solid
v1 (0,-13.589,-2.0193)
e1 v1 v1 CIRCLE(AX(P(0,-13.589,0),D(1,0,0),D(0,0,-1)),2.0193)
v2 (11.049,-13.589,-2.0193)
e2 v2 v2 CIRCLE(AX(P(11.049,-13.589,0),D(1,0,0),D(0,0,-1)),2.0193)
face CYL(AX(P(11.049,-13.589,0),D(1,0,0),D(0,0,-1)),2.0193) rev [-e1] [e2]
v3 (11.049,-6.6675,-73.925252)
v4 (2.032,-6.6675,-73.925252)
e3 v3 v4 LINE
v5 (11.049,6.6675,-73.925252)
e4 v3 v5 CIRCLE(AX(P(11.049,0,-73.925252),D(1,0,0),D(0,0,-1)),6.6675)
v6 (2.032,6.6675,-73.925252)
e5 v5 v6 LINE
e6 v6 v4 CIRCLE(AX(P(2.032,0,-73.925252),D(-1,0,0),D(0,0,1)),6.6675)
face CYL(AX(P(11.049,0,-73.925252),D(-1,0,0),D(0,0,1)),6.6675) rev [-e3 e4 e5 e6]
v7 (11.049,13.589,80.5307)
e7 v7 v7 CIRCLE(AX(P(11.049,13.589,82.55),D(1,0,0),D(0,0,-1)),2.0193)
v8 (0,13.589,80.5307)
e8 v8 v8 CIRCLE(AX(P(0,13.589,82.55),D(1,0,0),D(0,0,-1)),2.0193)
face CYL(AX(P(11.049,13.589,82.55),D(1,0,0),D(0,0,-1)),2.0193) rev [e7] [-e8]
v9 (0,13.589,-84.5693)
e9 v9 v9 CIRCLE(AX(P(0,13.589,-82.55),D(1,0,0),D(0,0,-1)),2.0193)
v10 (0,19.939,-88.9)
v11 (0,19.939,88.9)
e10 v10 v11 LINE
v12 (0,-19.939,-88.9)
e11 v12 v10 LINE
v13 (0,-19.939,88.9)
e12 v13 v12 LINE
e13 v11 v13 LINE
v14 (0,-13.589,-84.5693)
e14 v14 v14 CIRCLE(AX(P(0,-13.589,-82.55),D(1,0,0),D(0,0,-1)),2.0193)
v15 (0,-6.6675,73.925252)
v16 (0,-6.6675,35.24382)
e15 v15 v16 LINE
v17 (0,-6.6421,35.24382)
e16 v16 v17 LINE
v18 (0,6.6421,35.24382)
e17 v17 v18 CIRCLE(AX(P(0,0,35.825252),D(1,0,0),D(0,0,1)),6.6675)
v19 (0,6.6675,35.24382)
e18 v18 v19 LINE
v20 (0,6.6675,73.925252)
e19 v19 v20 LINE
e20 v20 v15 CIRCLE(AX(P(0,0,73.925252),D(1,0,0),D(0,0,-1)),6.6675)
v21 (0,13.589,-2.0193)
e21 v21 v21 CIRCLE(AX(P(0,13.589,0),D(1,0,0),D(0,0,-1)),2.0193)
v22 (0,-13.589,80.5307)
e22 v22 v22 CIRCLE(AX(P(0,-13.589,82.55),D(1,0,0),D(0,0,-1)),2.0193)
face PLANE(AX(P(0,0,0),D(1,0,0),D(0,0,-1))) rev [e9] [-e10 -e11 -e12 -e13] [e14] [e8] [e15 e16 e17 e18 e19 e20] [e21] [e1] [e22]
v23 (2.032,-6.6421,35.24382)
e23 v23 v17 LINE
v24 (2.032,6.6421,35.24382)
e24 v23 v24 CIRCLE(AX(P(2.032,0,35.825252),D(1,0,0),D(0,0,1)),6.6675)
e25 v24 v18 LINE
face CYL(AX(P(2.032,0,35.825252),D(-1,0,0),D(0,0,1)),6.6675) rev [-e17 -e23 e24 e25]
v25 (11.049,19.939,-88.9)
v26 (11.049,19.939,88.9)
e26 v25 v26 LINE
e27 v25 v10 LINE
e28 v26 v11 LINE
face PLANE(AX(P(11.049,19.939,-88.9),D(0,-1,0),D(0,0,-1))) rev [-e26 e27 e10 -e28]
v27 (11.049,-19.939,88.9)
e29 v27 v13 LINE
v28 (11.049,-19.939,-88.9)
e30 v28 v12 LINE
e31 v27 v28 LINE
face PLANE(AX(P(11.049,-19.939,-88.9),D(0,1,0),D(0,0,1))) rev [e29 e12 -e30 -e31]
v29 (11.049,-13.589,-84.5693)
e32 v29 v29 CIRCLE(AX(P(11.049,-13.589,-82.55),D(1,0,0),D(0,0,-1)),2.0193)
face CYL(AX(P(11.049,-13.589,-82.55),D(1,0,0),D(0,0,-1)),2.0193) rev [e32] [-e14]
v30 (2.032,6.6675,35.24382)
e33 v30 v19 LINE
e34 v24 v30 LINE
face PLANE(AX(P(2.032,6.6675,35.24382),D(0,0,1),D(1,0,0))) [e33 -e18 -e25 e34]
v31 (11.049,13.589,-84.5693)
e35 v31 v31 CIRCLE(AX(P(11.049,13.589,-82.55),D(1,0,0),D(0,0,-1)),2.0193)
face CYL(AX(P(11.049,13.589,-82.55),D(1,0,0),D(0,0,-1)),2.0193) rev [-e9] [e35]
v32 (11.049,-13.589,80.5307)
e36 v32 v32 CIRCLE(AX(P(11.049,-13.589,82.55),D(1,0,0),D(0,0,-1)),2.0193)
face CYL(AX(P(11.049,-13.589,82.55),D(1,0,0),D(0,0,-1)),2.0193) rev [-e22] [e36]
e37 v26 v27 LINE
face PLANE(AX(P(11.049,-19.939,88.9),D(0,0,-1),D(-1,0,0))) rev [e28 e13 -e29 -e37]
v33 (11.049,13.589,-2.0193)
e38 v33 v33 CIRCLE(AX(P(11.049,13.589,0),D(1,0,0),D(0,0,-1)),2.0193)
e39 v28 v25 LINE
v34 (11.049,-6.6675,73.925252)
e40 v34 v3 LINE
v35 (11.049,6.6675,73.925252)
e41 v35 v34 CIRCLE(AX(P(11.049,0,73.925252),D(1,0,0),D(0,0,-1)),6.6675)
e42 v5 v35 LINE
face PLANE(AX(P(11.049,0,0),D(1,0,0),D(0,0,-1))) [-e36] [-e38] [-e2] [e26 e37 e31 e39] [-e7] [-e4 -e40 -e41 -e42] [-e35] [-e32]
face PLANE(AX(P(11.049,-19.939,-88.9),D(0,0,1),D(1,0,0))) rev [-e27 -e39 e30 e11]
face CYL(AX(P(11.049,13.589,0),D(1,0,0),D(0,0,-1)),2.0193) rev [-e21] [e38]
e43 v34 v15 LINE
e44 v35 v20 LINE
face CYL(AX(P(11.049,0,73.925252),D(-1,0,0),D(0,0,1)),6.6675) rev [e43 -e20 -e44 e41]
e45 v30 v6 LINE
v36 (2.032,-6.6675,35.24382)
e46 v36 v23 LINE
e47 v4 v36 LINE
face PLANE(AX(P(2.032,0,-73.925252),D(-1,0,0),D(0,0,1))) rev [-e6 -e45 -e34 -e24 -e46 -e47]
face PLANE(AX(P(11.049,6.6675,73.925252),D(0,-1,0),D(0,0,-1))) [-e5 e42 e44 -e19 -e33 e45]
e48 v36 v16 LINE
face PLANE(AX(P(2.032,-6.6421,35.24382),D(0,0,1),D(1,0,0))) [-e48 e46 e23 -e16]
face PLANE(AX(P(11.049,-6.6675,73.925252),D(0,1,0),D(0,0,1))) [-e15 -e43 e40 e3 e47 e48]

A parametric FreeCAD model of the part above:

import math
import FreeCAD as App
import Part
import Sketcher

V = App.Vector
Q = App.Units.Quantity

doc = App.newDocument("Part")
body = doc.addObject("PartDesign::Body", "Body")

# Sketch on YZ plane
sketch1 = doc.addObject("Sketcher::SketchObject", "Sketch")
body.addObject(sketch1)
sketch1.AttachmentSupport = (doc.YZ_Plane, [""])
sketch1.MapMode = "FlatFace"
sketch1.addGeometry(Part.LineSegment(V(19.939, 88.9, 0), V(-19.939, 88.9, 0)), False)
sketch1.addGeometry(Part.LineSegment(V(-19.939, 88.9, 0), V(-19.939, -88.9, 0)), False)
sketch1.addGeometry(Part.LineSegment(V(-19.939, -88.9, 0), V(19.939, -88.9, 0)), False)
sketch1.addGeometry(Part.LineSegment(V(19.939, -88.9, 0), V(19.939, 88.9, 0)), False)
sketch1.addGeometry(Part.ArcOfCircle(Part.Circle(V(0, 73.925252, 0), V(0, 0, 1), 6.6675), math.radians(0), math.radians(180)), False)
sketch1.addGeometry(Part.LineSegment(V(6.6675, 73.925252, 0), V(6.6675, -73.925252, 0)), False)
sketch1.addGeometry(Part.ArcOfCircle(Part.Circle(V(0, -73.925252, 0), V(0, 0, 1), 6.6675), math.radians(180), math.radians(360)), False)
sketch1.addGeometry(Part.LineSegment(V(-6.6675, -73.925252, 0), V(-6.6675, 73.925252, 0)), False)
sketch1.addConstraint(Sketcher.Constraint("Coincident", 0, 2, 1, 1))
sketch1.addConstraint(Sketcher.Constraint("Coincident", 1, 2, 2, 1))
sketch1.addConstraint(Sketcher.Constraint("Coincident", 2, 2, 3, 1))
sketch1.addConstraint(Sketcher.Constraint("Coincident", 3, 2, 0, 1))
sketch1.addConstraint(Sketcher.Constraint("Tangent", 4, 1, 5, 1))
sketch1.addConstraint(Sketcher.Constraint("Tangent", 5, 2, 6, 2))
sketch1.addConstraint(Sketcher.Constraint("Tangent", 6, 1, 7, 1))
sketch1.addConstraint(Sketcher.Constraint("Tangent", 7, 2, 4, 2))
sketch1.addConstraint(Sketcher.Constraint("Horizontal", 0))
sketch1.addConstraint(Sketcher.Constraint("Vertical", 1))
sketch1.addConstraint(Sketcher.Constraint("Horizontal", 2))
sketch1.addConstraint(Sketcher.Constraint("Vertical", 3))
sketch1.addConstraint(Sketcher.Constraint("Vertical", 5))
sketch1.addConstraint(Sketcher.Constraint("Vertical", 7))
sketch1.addConstraint(Sketcher.Constraint("Symmetric", 4, 3, 6, 3, -1, 1))
sketch1.addConstraint(Sketcher.Constraint("Symmetric", 0, 2, 2, 2, -1, 1))
sketch1.addConstraint(Sketcher.Constraint("DistanceY", 1, 2, 1, 1, Q("7 in")))
sketch1.addConstraint(Sketcher.Constraint("DistanceX", 0, 2, 0, 1, Q("1.57 in")))
sketch1.addConstraint(Sketcher.Constraint("Radius", 4, Q("0.2625 in")))
sketch1.addConstraint(Sketcher.Constraint("DistanceY", 5, 2, 5, 1, Q("147.850504 mm")))
pad1 = doc.addObject("PartDesign::Pad", "Pad")
body.addObject(pad1)
pad1.Profile = sketch1
pad1.Length = Q("0.435 in")

# Sketch on YZ plane
sketch2 = doc.addObject("Sketcher::SketchObject", "Sketch001")
body.addObject(sketch2)
sketch2.AttachmentSupport = (doc.YZ_Plane, [""])
sketch2.MapMode = "FlatFace"
sketch2.AttachmentOffset = App.Placement(V(0, 0, 0.435 * 25.4), App.Rotation())
sketch2.addGeometry(Part.Circle(V(13.589, 82.55, 0), V(0, 0, 1), 2.0193), False)
sketch2.addGeometry(Part.Circle(V(-13.589, 82.55, 0), V(0, 0, 1), 2.0193), False)
sketch2.addGeometry(Part.Circle(V(-13.589, 0, 0), V(0, 0, 1), 2.0193), False)
sketch2.addGeometry(Part.Circle(V(-13.589, -82.55, 0), V(0, 0, 1), 2.0193), False)
sketch2.addGeometry(Part.Circle(V(13.589, -82.55, 0), V(0, 0, 1), 2.0193), False)
sketch2.addGeometry(Part.Circle(V(13.589, 0, 0), V(0, 0, 1), 2.0193), False)
sketch2.addConstraint(Sketcher.Constraint("Equal", 0, 1))
sketch2.addConstraint(Sketcher.Constraint("Equal", 1, 2))
sketch2.addConstraint(Sketcher.Constraint("Equal", 2, 3))
sketch2.addConstraint(Sketcher.Constraint("Equal", 3, 4))
sketch2.addConstraint(Sketcher.Constraint("Equal", 4, 5))
sketch2.addConstraint(Sketcher.Constraint("Symmetric", 0, 3, 3, 3, -1, 1))
sketch2.addConstraint(Sketcher.Constraint("Symmetric", 1, 3, 4, 3, -1, 1))
sketch2.addConstraint(Sketcher.Constraint("Symmetric", 2, 3, 5, 3, -1, 1))
sketch2.addConstraint(Sketcher.Constraint("Symmetric", 0, 3, 1, 3, -2))
sketch2.addConstraint(Sketcher.Constraint("PointOnObject", 2, 3, -1))
sketch2.addConstraint(Sketcher.Constraint("Vertical", 1, 3, 2, 3))
sketch2.addConstraint(Sketcher.Constraint("Diameter", 0, Q("0.159 in")))
sketch2.addConstraint(Sketcher.Constraint("DistanceY", 3, 3, 1, 3, Q("6.5 in")))
sketch2.addConstraint(Sketcher.Constraint("DistanceX", 1, 3, 0, 3, Q("1.07 in")))
doc.recompute()
hole = doc.addObject("PartDesign::Hole", "Hole")
body.addObject(hole)
hole.Profile = sketch2
hole.ThreadType = "None"
hole.Diameter = Q("0.159 in")
hole.DepthType = "ThroughAll"

# Sketch on YZ plane
sketch3 = doc.addObject("Sketcher::SketchObject", "Sketch002")
body.addObject(sketch3)
sketch3.AttachmentSupport = (doc.YZ_Plane, [""])
sketch3.MapMode = "FlatFace"
sketch3.addGeometry(Part.LineSegment(V(6.6421, 35.24382, 0), V(6.6675, 35.24382, 0)), False)
sketch3.addGeometry(Part.LineSegment(V(6.6675, 35.24382, 0), V(6.6675, -73.925252, 0)), False)
sketch3.addGeometry(Part.ArcOfCircle(Part.Circle(V(0, -73.925252, 0), V(0, 0, 1), 6.6675), math.radians(180), math.radians(360)), False)
sketch3.addGeometry(Part.LineSegment(V(-6.6675, -73.925252, 0), V(-6.6675, 35.24382, 0)), False)
sketch3.addGeometry(Part.LineSegment(V(-6.6675, 35.24382, 0), V(-6.6421, 35.24382, 0)), False)
sketch3.addGeometry(Part.ArcOfCircle(Part.Circle(V(0, 35.825252, 0), V(0, 0, 1), 6.6675), math.radians(-174.997225), math.radians(-5.002775)), False)
sketch3.addConstraint(Sketcher.Constraint("Coincident", 0, 2, 1, 1))
sketch3.addConstraint(Sketcher.Constraint("Tangent", 1, 2, 2, 2))
sketch3.addConstraint(Sketcher.Constraint("Tangent", 2, 1, 3, 1))
sketch3.addConstraint(Sketcher.Constraint("Coincident", 3, 2, 4, 1))
sketch3.addConstraint(Sketcher.Constraint("Coincident", 4, 2, 5, 1))
sketch3.addConstraint(Sketcher.Constraint("Coincident", 5, 2, 0, 1))
sketch3.addConstraint(Sketcher.Constraint("Horizontal", 0))
sketch3.addConstraint(Sketcher.Constraint("Vertical", 1))
sketch3.addConstraint(Sketcher.Constraint("Vertical", 3))
sketch3.addConstraint(Sketcher.Constraint("Horizontal", 4))
sketch3.addConstraint(Sketcher.Constraint("Equal", 2, 5))
sketch3.addConstraint(Sketcher.Constraint("Symmetric", 0, 2, 3, 2, -2))
sketch3.addConstraint(Sketcher.Constraint("PointOnObject", 5, 3, -2))
sketch3.addConstraint(Sketcher.Constraint("Radius", 2, Q("0.2625 in")))
sketch3.addConstraint(Sketcher.Constraint("DistanceX", 0, 1, 0, 2, Q("0.001 in")))
sketch3.addConstraint(Sketcher.Constraint("DistanceY", 1, 2, 1, 1, Q("109.169072 mm")))
sketch3.addConstraint(Sketcher.Constraint("DistanceY", -1, 1, 0, 2, Q("35.24382 mm")))
pad2 = doc.addObject("PartDesign::Pad", "Pad001")
body.addObject(pad2)
pad2.Profile = sketch3
pad2.Length = Q("0.08 in")

doc.recompute()
